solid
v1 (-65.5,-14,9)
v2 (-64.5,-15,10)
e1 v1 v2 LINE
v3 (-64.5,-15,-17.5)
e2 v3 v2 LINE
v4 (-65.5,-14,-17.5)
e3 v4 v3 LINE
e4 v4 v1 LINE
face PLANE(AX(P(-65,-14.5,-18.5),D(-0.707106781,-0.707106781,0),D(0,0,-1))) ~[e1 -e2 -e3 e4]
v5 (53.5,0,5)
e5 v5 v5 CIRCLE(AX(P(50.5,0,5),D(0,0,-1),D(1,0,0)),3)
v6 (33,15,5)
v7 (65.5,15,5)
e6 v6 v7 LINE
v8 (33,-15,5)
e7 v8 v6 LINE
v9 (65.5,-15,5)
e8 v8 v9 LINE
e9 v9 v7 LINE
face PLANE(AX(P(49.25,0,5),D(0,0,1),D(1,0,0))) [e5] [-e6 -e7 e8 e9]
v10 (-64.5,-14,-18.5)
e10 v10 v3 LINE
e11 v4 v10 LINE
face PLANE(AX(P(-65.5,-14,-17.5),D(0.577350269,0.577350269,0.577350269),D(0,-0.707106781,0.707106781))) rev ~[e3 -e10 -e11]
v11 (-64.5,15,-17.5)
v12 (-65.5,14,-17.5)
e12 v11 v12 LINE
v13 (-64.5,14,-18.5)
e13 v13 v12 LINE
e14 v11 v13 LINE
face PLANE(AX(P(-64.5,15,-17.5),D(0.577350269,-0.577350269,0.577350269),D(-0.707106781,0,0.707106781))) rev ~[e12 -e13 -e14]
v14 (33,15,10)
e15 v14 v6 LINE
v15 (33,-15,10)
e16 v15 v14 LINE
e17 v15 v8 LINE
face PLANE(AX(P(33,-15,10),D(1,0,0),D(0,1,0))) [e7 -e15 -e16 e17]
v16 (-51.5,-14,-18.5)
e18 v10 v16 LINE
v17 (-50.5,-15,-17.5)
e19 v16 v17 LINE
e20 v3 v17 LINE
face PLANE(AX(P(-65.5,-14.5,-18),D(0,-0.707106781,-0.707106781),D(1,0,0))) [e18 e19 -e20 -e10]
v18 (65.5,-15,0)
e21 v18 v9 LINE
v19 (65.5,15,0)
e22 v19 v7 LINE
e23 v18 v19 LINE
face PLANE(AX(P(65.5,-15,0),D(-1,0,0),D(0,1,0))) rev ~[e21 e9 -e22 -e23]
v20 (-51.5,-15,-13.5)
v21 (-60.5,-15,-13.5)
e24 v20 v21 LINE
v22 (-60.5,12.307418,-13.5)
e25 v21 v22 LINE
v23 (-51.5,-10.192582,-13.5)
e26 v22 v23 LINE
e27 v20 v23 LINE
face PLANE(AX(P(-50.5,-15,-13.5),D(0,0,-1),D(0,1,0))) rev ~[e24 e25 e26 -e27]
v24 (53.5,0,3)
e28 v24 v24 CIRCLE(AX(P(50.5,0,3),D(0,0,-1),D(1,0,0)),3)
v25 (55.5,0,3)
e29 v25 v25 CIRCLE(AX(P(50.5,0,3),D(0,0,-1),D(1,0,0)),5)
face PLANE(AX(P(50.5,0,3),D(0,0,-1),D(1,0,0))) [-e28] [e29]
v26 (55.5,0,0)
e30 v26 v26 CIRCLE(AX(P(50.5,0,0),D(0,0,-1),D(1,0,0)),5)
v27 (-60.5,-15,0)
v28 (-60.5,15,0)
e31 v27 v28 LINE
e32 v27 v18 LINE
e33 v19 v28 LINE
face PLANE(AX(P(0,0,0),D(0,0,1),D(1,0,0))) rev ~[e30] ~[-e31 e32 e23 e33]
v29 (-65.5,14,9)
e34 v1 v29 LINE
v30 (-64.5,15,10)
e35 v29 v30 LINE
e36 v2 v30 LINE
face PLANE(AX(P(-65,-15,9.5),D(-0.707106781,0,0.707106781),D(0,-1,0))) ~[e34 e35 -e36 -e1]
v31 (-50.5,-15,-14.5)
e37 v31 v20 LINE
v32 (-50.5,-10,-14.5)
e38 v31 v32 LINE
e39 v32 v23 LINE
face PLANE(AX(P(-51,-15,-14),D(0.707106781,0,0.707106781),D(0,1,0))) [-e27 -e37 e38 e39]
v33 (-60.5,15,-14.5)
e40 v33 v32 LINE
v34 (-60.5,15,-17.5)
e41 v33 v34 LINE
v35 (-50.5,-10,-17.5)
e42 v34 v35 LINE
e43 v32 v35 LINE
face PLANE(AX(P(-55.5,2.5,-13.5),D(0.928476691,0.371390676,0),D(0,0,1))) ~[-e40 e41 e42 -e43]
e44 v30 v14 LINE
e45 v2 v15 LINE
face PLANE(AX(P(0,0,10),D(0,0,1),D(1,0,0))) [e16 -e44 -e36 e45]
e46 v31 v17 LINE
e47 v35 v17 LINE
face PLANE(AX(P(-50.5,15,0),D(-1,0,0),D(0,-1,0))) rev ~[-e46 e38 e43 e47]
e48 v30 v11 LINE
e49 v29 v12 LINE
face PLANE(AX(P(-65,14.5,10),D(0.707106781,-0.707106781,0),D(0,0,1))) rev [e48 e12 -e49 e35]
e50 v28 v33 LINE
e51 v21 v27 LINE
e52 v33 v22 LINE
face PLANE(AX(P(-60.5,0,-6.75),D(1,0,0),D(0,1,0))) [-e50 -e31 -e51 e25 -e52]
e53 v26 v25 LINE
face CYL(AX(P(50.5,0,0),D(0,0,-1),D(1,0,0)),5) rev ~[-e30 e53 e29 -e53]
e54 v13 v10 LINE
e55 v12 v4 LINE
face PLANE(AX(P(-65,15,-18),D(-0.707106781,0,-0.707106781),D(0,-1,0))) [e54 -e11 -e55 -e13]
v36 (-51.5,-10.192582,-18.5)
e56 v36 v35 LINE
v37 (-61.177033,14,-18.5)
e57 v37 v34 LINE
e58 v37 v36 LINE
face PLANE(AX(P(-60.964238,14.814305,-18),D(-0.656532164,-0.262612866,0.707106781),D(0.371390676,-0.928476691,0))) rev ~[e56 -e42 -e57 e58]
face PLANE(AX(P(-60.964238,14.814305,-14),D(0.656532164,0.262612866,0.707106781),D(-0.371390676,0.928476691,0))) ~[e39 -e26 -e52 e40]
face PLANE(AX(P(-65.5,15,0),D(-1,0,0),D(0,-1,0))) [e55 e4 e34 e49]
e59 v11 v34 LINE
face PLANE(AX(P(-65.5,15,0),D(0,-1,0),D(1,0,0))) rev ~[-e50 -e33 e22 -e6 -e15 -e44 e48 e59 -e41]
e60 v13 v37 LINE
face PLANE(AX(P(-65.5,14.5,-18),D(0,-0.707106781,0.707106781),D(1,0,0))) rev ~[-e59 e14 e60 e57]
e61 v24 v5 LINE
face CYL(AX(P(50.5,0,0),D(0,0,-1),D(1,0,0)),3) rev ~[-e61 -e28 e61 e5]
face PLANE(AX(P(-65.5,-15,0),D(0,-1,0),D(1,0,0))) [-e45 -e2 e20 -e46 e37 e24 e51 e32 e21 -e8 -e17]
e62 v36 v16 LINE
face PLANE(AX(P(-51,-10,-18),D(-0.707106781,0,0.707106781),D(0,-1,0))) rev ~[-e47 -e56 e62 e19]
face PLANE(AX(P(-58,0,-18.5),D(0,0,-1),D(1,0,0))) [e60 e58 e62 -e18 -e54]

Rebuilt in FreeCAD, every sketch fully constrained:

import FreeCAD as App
import Part
import Sketcher

V = App.Vector
Q = App.Units.Quantity


def edges_at(feature, points):
    """Names of the edges that pass closest to the given points."""
    edges = feature.Shape.Edges
    near = lambda p: min(range(len(edges)), key=lambda i: edges[i].distToShape(Part.Vertex(*p))[0])
    return sorted({f"Edge{near(p) + 1}" for p in points})


def add_polygon(sketch, points):
    """Adds a closed chain of lines whose ends are joined by coincident constraints."""
    first, n = sketch.GeometryCount, len(points)
    for a, b in zip(points, points[1:] + points[:1]):
        sketch.addGeometry(Part.LineSegment(App.Vector(*a, 0), App.Vector(*b, 0)), False)
    for i in range(n):
        sketch.addConstraint(Sketcher.Constraint("Coincident", first + i, 2, first + (i + 1) % n, 1))

doc = App.newDocument("Part")
body = doc.addObject("PartDesign::Body", "Body")

sketch1 = body.newObject("Sketcher::SketchObject", "Sketch")
sketch1.AttachmentSupport = (doc.getObject("XY_Plane"), [""])
sketch1.MapMode = "FlatFace"
add_polygon(sketch1, [(-66, 15), (-66, -15), (66, -15), (66, 15)])
sketch1.addConstraint(Sketcher.Constraint("Vertical", 0))
sketch1.addConstraint(Sketcher.Constraint("Horizontal", 1))
sketch1.addConstraint(Sketcher.Constraint("Vertical", 2))
sketch1.addConstraint(Sketcher.Constraint("Horizontal", 3))
sketch1.addConstraint(Sketcher.Constraint("Symmetric", 0, 2, 2, 2, -1, 1))
sketch1.addConstraint(Sketcher.Constraint("DistanceX", 1, 1, 1, 2, Q("131 mm")))
sketch1.addConstraint(Sketcher.Constraint("DistanceY", 0, 2, 0, 1, Q("30 mm")))
pad1 = body.newObject("PartDesign::Pad", "Pad")
pad1.Profile = sketch1
pad1.Length = 10

sketch2 = body.newObject("Sketcher::SketchObject", "Sketch001")
sketch2.AttachmentSupport = (doc.getObject("XY_Plane"), [""])
sketch2.MapMode = "FlatFace"
add_polygon(sketch2, [(-66, -15), (-66, 15), (-50, 15), (-50, -15)])
sketch2.addConstraint(Sketcher.Constraint("Vertical", 0))
sketch2.addConstraint(Sketcher.Constraint("Horizontal", 1))
sketch2.addConstraint(Sketcher.Constraint("Vertical", 2))
sketch2.addConstraint(Sketcher.Constraint("Horizontal", 3))
sketch2.addConstraint(Sketcher.Constraint("DistanceX", 1, 1, 1, 2, Q("15 mm")))
sketch2.addConstraint(Sketcher.Constraint("DistanceY", 0, 1, 0, 2, Q("30 mm")))
sketch2.addConstraint(Sketcher.Constraint("DistanceY", -1, 1, 0, 2, Q("15 mm")))
sketch2.addConstraint(Sketcher.Constraint("DistanceX", 0, 2, -1, 1, Q("65.5 mm")))
pad2 = body.newObject("PartDesign::Pad", "Pad001")
pad2.Profile = sketch2
pad2.Length = 18.5
pad2.Reversed = True

sketch3 = body.newObject("Sketcher::SketchObject", "Sketch002")
sketch3.AttachmentSupport = (doc.getObject("YZ_Plane"), [""])
sketch3.MapMode = "FlatFace"
sketch3.AttachmentOffset = App.Placement(V(0, 0, -50.5), App.Rotation())
add_polygon(sketch3, [(-15, 0), (-15, -14), (15, -14), (15, 0)])
sketch3.addConstraint(Sketcher.Constraint("Vertical", 0))
sketch3.addConstraint(Sketcher.Constraint("Horizontal", 1))
sketch3.addConstraint(Sketcher.Constraint("Vertical", 2))
sketch3.addConstraint(Sketcher.Constraint("Horizontal", 3))
sketch3.addConstraint(Sketcher.Constraint("Symmetric", 2, 2, 3, 2, -1, 1))
sketch3.addConstraint(Sketcher.Constraint("DistanceX", 1, 1, 1, 2, Q("30 mm")))
sketch3.addConstraint(Sketcher.Constraint("DistanceY", 0, 2, 0, 1, Q("13.5 mm")))
pocket1 = body.newObject("PartDesign::Pocket", "Pocket")
pocket1.Profile = sketch3
pocket1.Length = 10

sketch4 = body.newObject("Sketcher::SketchObject", "Sketch003")
sketch4.AttachmentSupport = (doc.getObject("XY_Plane"), [""])
sketch4.MapMode = "FlatFace"
sketch4.addGeometry(Part.Circle(V(50.5, 0, 0), V(0, 0, 1), 3), False)
sketch4.addConstraint(Sketcher.Constraint("PointOnObject", 0, 3, -1))
sketch4.addConstraint(Sketcher.Constraint("Diameter", 0, Q("6 mm")))
sketch4.addConstraint(Sketcher.Constraint("DistanceX", -1, 1, 0, 3, Q("50.5 mm")))
pocket2 = body.newObject("PartDesign::Pocket", "Pocket001")
pocket2.Profile = sketch4
pocket2.Type = "ThroughAll"
pocket2.Reversed = True

sketch5 = body.newObject("Sketcher::SketchObject", "Sketch004")
sketch5.AttachmentSupport = (doc.getObject("XY_Plane"), [""])
sketch5.MapMode = "FlatFace"
sketch5.AttachmentOffset = App.Placement(V(0, 0, 10), App.Rotation())
add_polygon(sketch5, [(33, 15), (33, -15), (66, -15), (66, 15)])
sketch5.addConstraint(Sketcher.Constraint("Vertical", 0))
sketch5.addConstraint(Sketcher.Constraint("Horizontal", 1))
sketch5.addConstraint(Sketcher.Constraint("Vertical", 2))
sketch5.addConstraint(Sketcher.Constraint("Horizontal", 3))
sketch5.addConstraint(Sketcher.Constraint("DistanceY", 0, 2, 0, 1, Q("30 mm")))
sketch5.addConstraint(Sketcher.Constraint("DistanceX", 1, 1, 1, 2, Q("32.5 mm")))
sketch5.addConstraint(Sketcher.Constraint("DistanceX", -1, 1, 0, 2, Q("33 mm")))
sketch5.addConstraint(Sketcher.Constraint("DistanceY", 0, 2, -1, 1, Q("15 mm")))
pocket3 = body.newObject("PartDesign::Pocket", "Pocket002")
pocket3.Profile = sketch5
pocket3.Length = 5

sketch6 = body.newObject("Sketcher::SketchObject", "Sketch005")
sketch6.AttachmentSupport = (doc.getObject("XY_Plane"), [""])
sketch6.MapMode = "FlatFace"
sketch6.addGeometry(Part.Circle(V(50, 0, 0), V(0, 0, 1), 5), False)
sketch6.addConstraint(Sketcher.Constraint("PointOnObject", 0, 3, -1))
sketch6.addConstraint(Sketcher.Constraint("Diameter", 0, Q("10 mm")))
sketch6.addConstraint(Sketcher.Constraint("DistanceX", -1, 1, 0, 3, Q("50.5 mm")))
pocket4 = body.newObject("PartDesign::Pocket", "Pocket003")
pocket4.Profile = sketch6
pocket4.Length = 3
pocket4.Reversed = True
doc.recompute()

chamfer = body.newObject("PartDesign::Chamfer", "Chamfer")
chamfer.Base = (pocket4, edges_at(pocket4, [(-50.5, 15, -16)]))
chamfer.ChamferType = "Two distances"
chamfer.Size = 10
chamfer.Size2 = 25
doc.recompute()

chamfer2 = body.newObject("PartDesign::Chamfer", "Chamfer001")
chamfer2.Base = (chamfer, edges_at(chamfer, [
    (-55.5, 2.5, -18.5),
    (-55.5, 2.5, -13.5),
    (-50.5, -12.5, -18.5),
    (-50.5, -12.5, -13.5),
    (-58, -15, -18.5),
    (-65.5, 0, -18.5),
    (-63, 15, -18.5),
    (-65.5, -15, -4.25),
    (-65.5, -15, -4.25),
    (-65.5, 0, 10),
    (-65.5, 15, -4.25),
    (-65.5, 15, -4.25),
]))
chamfer2.Size = 1

doc.recompute()
